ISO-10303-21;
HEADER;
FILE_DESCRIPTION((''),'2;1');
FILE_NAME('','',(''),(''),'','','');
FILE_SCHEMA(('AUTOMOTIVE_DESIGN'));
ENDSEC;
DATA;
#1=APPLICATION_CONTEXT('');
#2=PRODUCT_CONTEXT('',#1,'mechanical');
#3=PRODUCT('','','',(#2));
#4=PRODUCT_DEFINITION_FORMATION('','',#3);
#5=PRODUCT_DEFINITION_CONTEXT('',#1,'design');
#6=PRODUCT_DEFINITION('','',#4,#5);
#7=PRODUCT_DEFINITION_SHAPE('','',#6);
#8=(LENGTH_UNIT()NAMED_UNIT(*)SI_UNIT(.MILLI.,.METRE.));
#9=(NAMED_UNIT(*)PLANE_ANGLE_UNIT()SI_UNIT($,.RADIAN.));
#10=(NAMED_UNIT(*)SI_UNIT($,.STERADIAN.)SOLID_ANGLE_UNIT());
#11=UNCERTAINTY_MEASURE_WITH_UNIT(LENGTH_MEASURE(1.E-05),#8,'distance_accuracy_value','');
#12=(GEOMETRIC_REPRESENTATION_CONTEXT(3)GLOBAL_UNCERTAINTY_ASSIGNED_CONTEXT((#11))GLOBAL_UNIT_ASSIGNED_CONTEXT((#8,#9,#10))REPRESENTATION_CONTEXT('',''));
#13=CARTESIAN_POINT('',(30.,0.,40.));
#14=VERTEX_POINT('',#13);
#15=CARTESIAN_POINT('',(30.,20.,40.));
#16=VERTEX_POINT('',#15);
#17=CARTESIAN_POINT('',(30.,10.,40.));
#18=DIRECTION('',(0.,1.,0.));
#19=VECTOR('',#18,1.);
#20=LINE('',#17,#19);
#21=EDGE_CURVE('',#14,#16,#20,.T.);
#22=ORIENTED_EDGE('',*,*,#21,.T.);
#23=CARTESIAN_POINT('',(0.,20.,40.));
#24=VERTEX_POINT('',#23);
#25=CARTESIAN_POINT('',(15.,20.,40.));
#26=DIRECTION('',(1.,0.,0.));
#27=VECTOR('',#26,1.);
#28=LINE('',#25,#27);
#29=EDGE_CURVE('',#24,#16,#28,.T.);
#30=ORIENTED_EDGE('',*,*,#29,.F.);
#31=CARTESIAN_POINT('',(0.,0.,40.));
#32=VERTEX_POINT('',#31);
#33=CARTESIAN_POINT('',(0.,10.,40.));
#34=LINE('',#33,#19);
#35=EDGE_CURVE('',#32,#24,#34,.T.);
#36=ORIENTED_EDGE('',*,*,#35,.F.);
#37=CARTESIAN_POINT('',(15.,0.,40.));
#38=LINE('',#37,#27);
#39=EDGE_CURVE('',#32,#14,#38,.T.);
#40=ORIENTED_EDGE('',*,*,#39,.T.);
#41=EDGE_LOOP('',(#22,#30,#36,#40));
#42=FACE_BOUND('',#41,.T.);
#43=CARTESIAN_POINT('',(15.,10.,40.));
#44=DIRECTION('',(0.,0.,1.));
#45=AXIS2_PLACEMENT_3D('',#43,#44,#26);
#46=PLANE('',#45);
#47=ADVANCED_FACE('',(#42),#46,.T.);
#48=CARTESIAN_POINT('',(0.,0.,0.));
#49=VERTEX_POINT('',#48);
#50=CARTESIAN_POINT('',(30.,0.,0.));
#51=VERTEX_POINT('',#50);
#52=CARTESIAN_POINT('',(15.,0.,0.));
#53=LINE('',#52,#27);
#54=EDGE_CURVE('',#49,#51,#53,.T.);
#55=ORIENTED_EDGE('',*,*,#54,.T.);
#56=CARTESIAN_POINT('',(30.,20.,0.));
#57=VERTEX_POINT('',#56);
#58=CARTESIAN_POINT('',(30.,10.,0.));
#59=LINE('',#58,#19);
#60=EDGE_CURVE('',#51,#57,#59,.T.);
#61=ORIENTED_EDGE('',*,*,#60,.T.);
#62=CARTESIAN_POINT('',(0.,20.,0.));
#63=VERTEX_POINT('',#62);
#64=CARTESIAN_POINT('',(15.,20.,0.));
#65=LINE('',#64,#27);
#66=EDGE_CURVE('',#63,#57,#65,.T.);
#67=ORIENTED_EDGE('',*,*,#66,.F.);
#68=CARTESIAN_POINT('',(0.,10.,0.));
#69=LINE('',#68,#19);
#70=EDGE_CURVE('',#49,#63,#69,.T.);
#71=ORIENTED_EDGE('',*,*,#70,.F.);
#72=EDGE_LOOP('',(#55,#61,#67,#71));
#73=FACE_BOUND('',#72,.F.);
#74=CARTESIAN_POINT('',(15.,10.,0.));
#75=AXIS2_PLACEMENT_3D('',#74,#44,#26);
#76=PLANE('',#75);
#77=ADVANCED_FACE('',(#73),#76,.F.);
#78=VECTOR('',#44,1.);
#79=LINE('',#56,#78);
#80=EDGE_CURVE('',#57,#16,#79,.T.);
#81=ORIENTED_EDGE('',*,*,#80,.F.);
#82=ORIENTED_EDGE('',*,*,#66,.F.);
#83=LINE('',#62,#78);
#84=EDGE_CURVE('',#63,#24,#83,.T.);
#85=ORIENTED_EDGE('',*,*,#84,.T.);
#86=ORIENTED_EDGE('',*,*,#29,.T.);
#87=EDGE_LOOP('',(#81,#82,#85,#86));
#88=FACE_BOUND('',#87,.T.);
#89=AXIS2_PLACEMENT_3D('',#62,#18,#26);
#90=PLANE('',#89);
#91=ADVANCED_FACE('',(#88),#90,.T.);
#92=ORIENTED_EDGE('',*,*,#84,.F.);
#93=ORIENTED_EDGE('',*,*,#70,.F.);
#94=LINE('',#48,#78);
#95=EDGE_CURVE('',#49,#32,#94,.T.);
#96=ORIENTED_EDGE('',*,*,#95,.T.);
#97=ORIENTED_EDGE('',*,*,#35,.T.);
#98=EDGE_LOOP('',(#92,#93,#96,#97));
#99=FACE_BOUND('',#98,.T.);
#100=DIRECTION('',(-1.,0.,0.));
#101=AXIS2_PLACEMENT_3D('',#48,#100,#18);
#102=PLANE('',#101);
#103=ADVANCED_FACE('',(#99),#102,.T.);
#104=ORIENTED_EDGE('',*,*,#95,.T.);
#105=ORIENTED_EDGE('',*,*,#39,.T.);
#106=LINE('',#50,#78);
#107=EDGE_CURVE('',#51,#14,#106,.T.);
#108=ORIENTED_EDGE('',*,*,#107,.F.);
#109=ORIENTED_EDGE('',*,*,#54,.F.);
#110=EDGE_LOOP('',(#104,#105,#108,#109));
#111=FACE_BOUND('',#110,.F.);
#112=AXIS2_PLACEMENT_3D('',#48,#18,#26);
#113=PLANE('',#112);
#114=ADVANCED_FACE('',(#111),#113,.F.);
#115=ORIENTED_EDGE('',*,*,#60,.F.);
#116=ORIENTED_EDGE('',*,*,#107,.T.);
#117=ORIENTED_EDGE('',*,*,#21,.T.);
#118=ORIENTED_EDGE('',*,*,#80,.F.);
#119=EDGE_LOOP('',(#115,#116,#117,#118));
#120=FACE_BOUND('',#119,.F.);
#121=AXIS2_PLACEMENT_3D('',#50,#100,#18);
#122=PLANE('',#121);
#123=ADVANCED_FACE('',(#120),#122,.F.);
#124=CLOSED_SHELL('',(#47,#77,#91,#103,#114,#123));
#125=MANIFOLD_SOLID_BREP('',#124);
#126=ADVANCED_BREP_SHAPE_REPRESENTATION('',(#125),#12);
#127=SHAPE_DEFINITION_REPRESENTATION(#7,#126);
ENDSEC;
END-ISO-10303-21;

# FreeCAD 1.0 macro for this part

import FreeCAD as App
import Part
import Sketcher
from FreeCAD import Vector
Q = App.Units.Quantity


def add_polygon(sketch, points):
    """Adds a closed chain of lines whose ends are joined by coincident constraints."""
    first, n = sketch.GeometryCount, len(points)
    for a, b in zip(points, points[1:] + points[:1]):
        sketch.addGeometry(Part.LineSegment(App.Vector(*a, 0), App.Vector(*b, 0)), False)
    for i in range(n):
        sketch.addConstraint(Sketcher.Constraint("Coincident", first + i, 2, first + (i + 1) % n, 1))

doc = App.newDocument("Part")
body = doc.addObject("PartDesign::Body", "Body")

sketch1 = body.newObject("Sketcher::SketchObject", "Sketch")
sketch1.AttachmentSupport = (doc.getObject("XY_Plane"), [""])
sketch1.MapMode = "FlatFace"
add_polygon(sketch1, [(0, 20), (0, 0), (30, 0), (30, 20)])
sketch1.addConstraint([
    Sketcher.Constraint("Vertical", 0),
    Sketcher.Constraint("Horizontal", 1),
    Sketcher.Constraint("Vertical", 2),
    Sketcher.Constraint("Horizontal", 3),
    Sketcher.Constraint("Coincident", 0, 2, -1, 1),
    Sketcher.Constraint("DistanceX", 1, 1, 1, 2, Q("30 mm")),
    Sketcher.Constraint("DistanceY", 0, 2, 0, 1, Q("20 mm")),
])
pad1 = body.newObject("PartDesign::Pad", "Pad")
pad1.Profile = sketch1
pad1.Length = 40

doc.recompute()
